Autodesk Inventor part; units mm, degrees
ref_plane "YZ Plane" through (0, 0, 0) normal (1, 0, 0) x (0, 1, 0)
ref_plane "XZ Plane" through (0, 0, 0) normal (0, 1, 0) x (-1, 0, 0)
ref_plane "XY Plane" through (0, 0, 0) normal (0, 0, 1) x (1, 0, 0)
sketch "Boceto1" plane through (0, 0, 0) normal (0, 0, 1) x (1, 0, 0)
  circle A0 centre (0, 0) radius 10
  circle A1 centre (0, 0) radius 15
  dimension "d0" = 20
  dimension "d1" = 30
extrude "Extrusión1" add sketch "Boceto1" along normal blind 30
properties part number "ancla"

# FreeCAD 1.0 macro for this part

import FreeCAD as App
import Part
import Sketcher
from FreeCAD import Vector

doc = App.newDocument("Part")
body = doc.addObject("PartDesign::Body", "Body")

# Sketch on XY plane
sketch1 = body.newObject("Sketcher::SketchObject", "Sketch")
sketch1.AttachmentSupport = (doc.getObject("XY_Plane"), [""])
sketch1.MapMode = "FlatFace"
sketch1.addGeometry([
    Part.Circle(Vector(0, 0, 0), Vector(0, 0, 1), 15),
    Part.Circle(Vector(0, 0, 0), Vector(0, 0, 1), 10),
], False)
sketch1.addConstraint([
    Sketcher.Constraint("Coincident", 0, 3, -1, 1),
    Sketcher.Constraint("Coincident", 1, 3, -1, 1),
    Sketcher.Constraint("Diameter", 0, 30.0),
    Sketcher.Constraint("Diameter", 1, 20.0),
])
pad1 = body.newObject("PartDesign::Pad", "Pad")
pad1.Profile = sketch1
pad1.Length = 30

doc.recompute()
